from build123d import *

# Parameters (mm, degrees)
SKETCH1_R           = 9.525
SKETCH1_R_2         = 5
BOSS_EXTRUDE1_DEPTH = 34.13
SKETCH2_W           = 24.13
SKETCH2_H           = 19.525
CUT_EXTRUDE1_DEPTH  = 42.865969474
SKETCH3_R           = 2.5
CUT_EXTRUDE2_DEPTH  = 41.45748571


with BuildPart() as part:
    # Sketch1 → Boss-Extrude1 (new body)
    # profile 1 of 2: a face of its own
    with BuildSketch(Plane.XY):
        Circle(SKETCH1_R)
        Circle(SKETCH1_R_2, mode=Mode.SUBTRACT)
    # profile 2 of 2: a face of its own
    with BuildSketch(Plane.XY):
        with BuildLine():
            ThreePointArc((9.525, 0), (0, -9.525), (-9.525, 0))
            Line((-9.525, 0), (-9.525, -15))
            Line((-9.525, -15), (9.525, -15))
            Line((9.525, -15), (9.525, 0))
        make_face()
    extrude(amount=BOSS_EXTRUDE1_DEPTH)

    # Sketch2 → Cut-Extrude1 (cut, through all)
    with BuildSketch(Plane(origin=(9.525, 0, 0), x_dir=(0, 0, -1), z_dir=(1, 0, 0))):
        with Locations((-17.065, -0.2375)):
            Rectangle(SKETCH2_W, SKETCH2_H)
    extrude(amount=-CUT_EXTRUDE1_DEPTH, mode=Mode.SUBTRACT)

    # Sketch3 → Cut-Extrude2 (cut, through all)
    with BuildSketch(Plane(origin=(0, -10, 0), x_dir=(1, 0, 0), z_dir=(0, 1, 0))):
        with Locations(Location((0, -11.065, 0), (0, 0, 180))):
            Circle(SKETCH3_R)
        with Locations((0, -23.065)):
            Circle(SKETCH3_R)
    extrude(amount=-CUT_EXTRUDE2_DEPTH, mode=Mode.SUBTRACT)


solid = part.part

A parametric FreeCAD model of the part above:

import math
import FreeCAD as App
import Part
import Sketcher

V = App.Vector
Q = App.Units.Quantity


def add_polygon(sketch, points):
    """Adds a closed chain of lines whose ends are joined by coincident constraints."""
    first, n = sketch.GeometryCount, len(points)
    for a, b in zip(points, points[1:] + points[:1]):
        sketch.addGeometry(Part.LineSegment(App.Vector(*a, 0), App.Vector(*b, 0)), False)
    for i in range(n):
        sketch.addConstraint(Sketcher.Constraint("Coincident", first + i, 2, first + (i + 1) % n, 1))

doc = App.newDocument("Part")
body = doc.addObject("PartDesign::Body", "Body")

# Sketch on XY plane
sketch1 = doc.addObject("Sketcher::SketchObject", "Sketch")
body.addObject(sketch1)
sketch1.AttachmentSupport = (doc.XY_Plane, [""])
sketch1.MapMode = "FlatFace"
sketch1.addGeometry(Part.ArcOfCircle(Part.Circle(V(0, 0, 0), V(0, 0, 1), 9.525), math.radians(0), math.radians(180)), False)
sketch1.addGeometry(Part.LineSegment(V(-9.525, 0, 0), V(-9.525, -15, 0)), False)
sketch1.addGeometry(Part.LineSegment(V(-9.525, -15, 0), V(9.525, -15, 0)), False)
sketch1.addGeometry(Part.LineSegment(V(9.525, -15, 0), V(9.525, 0, 0)), False)
sketch1.addGeometry(Part.Circle(V(0, 0, 0), V(0, 0, 1), 5), False)
sketch1.addConstraint(Sketcher.Constraint("Tangent", 0, 2, 1, 1))
sketch1.addConstraint(Sketcher.Constraint("Coincident", 1, 2, 2, 1))
sketch1.addConstraint(Sketcher.Constraint("Coincident", 2, 2, 3, 1))
sketch1.addConstraint(Sketcher.Constraint("Tangent", 3, 2, 0, 1))
sketch1.addConstraint(Sketcher.Constraint("Vertical", 1))
sketch1.addConstraint(Sketcher.Constraint("Horizontal", 2))
sketch1.addConstraint(Sketcher.Constraint("Vertical", 3))
sketch1.addConstraint(Sketcher.Constraint("Coincident", 0, 3, -1, 1))
sketch1.addConstraint(Sketcher.Constraint("Coincident", 4, 3, -1, 1))
sketch1.addConstraint(Sketcher.Constraint("Diameter", 4, Q("10 mm")))
sketch1.addConstraint(Sketcher.Constraint("DistanceY", 1, 2, 1, 1, Q("15 mm")))
sketch1.addConstraint(Sketcher.Constraint("Radius", 0, Q("9.525 mm")))
pad1 = doc.addObject("PartDesign::Pad", "Pad")
body.addObject(pad1)
pad1.Profile = sketch1
pad1.Length = 34.13

# Sketch on YZ plane
sketch2 = doc.addObject("Sketcher::SketchObject", "Sketch001")
body.addObject(sketch2)
sketch2.AttachmentSupport = (doc.YZ_Plane, [""])
sketch2.MapMode = "FlatFace"
sketch2.AttachmentOffset = App.Placement(V(0, 0, 9.525), App.Rotation())
add_polygon(sketch2, [(9.525, 29.13), (-10, 29.13), (-10, 5), (9.525, 5)])  # lines 0-3
sketch2.addConstraint(Sketcher.Constraint("Horizontal", 0))
sketch2.addConstraint(Sketcher.Constraint("Vertical", 1))
sketch2.addConstraint(Sketcher.Constraint("Horizontal", 2))
sketch2.addConstraint(Sketcher.Constraint("Vertical", 3))
sketch2.addConstraint(Sketcher.Constraint("DistanceX", 0, 2, -1, 1, Q("10 mm")))
sketch2.addConstraint(Sketcher.Constraint("DistanceY", -1, 1, 1, 2, Q("5 mm")))
sketch2.addConstraint(Sketcher.Constraint("DistanceY", 1, 2, 1, 1, Q("24.13 mm")))
sketch2.addConstraint(Sketcher.Constraint("DistanceX", 0, 2, 0, 1, Q("19.525 mm")))
pocket1 = doc.addObject("PartDesign::Pocket", "Pocket")
body.addObject(pocket1)
pocket1.Profile = sketch2
pocket1.Type = "ThroughAll"

# Sketch on XZ plane
sketch3 = doc.addObject("Sketcher::SketchObject", "Sketch002")
body.addObject(sketch3)
sketch3.AttachmentSupport = (doc.XZ_Plane, [""])
sketch3.MapMode = "FlatFace"
sketch3.AttachmentOffset = App.Placement(V(0, 0, 10), App.Rotation())
sketch3.addGeometry(Part.Circle(V(0, 11.065, 0), V(0, 0, 1), 2.5), False)
sketch3.addGeometry(Part.Circle(V(0, 23.065, 0), V(0, 0, 1), 2.5), False)
sketch3.addConstraint(Sketcher.Constraint("Equal", 0, 1))
sketch3.addConstraint(Sketcher.Constraint("PointOnObject", 0, 3, -2))
sketch3.addConstraint(Sketcher.Constraint("PointOnObject", 1, 3, -2))
sketch3.addConstraint(Sketcher.Constraint("Diameter", 0, Q("5 mm")))
sketch3.addConstraint(Sketcher.Constraint("DistanceY", 0, 3, 1, 3, Q("12 mm")))
sketch3.addConstraint(Sketcher.Constraint("DistanceY", -1, 1, 0, 3, Q("11.065 mm")))
pocket2 = doc.addObject("PartDesign::Pocket", "Pocket001")
body.addObject(pocket2)
pocket2.Profile = sketch3
pocket2.Type = "ThroughAll"
pocket2.Reversed = True

doc.recompute()
